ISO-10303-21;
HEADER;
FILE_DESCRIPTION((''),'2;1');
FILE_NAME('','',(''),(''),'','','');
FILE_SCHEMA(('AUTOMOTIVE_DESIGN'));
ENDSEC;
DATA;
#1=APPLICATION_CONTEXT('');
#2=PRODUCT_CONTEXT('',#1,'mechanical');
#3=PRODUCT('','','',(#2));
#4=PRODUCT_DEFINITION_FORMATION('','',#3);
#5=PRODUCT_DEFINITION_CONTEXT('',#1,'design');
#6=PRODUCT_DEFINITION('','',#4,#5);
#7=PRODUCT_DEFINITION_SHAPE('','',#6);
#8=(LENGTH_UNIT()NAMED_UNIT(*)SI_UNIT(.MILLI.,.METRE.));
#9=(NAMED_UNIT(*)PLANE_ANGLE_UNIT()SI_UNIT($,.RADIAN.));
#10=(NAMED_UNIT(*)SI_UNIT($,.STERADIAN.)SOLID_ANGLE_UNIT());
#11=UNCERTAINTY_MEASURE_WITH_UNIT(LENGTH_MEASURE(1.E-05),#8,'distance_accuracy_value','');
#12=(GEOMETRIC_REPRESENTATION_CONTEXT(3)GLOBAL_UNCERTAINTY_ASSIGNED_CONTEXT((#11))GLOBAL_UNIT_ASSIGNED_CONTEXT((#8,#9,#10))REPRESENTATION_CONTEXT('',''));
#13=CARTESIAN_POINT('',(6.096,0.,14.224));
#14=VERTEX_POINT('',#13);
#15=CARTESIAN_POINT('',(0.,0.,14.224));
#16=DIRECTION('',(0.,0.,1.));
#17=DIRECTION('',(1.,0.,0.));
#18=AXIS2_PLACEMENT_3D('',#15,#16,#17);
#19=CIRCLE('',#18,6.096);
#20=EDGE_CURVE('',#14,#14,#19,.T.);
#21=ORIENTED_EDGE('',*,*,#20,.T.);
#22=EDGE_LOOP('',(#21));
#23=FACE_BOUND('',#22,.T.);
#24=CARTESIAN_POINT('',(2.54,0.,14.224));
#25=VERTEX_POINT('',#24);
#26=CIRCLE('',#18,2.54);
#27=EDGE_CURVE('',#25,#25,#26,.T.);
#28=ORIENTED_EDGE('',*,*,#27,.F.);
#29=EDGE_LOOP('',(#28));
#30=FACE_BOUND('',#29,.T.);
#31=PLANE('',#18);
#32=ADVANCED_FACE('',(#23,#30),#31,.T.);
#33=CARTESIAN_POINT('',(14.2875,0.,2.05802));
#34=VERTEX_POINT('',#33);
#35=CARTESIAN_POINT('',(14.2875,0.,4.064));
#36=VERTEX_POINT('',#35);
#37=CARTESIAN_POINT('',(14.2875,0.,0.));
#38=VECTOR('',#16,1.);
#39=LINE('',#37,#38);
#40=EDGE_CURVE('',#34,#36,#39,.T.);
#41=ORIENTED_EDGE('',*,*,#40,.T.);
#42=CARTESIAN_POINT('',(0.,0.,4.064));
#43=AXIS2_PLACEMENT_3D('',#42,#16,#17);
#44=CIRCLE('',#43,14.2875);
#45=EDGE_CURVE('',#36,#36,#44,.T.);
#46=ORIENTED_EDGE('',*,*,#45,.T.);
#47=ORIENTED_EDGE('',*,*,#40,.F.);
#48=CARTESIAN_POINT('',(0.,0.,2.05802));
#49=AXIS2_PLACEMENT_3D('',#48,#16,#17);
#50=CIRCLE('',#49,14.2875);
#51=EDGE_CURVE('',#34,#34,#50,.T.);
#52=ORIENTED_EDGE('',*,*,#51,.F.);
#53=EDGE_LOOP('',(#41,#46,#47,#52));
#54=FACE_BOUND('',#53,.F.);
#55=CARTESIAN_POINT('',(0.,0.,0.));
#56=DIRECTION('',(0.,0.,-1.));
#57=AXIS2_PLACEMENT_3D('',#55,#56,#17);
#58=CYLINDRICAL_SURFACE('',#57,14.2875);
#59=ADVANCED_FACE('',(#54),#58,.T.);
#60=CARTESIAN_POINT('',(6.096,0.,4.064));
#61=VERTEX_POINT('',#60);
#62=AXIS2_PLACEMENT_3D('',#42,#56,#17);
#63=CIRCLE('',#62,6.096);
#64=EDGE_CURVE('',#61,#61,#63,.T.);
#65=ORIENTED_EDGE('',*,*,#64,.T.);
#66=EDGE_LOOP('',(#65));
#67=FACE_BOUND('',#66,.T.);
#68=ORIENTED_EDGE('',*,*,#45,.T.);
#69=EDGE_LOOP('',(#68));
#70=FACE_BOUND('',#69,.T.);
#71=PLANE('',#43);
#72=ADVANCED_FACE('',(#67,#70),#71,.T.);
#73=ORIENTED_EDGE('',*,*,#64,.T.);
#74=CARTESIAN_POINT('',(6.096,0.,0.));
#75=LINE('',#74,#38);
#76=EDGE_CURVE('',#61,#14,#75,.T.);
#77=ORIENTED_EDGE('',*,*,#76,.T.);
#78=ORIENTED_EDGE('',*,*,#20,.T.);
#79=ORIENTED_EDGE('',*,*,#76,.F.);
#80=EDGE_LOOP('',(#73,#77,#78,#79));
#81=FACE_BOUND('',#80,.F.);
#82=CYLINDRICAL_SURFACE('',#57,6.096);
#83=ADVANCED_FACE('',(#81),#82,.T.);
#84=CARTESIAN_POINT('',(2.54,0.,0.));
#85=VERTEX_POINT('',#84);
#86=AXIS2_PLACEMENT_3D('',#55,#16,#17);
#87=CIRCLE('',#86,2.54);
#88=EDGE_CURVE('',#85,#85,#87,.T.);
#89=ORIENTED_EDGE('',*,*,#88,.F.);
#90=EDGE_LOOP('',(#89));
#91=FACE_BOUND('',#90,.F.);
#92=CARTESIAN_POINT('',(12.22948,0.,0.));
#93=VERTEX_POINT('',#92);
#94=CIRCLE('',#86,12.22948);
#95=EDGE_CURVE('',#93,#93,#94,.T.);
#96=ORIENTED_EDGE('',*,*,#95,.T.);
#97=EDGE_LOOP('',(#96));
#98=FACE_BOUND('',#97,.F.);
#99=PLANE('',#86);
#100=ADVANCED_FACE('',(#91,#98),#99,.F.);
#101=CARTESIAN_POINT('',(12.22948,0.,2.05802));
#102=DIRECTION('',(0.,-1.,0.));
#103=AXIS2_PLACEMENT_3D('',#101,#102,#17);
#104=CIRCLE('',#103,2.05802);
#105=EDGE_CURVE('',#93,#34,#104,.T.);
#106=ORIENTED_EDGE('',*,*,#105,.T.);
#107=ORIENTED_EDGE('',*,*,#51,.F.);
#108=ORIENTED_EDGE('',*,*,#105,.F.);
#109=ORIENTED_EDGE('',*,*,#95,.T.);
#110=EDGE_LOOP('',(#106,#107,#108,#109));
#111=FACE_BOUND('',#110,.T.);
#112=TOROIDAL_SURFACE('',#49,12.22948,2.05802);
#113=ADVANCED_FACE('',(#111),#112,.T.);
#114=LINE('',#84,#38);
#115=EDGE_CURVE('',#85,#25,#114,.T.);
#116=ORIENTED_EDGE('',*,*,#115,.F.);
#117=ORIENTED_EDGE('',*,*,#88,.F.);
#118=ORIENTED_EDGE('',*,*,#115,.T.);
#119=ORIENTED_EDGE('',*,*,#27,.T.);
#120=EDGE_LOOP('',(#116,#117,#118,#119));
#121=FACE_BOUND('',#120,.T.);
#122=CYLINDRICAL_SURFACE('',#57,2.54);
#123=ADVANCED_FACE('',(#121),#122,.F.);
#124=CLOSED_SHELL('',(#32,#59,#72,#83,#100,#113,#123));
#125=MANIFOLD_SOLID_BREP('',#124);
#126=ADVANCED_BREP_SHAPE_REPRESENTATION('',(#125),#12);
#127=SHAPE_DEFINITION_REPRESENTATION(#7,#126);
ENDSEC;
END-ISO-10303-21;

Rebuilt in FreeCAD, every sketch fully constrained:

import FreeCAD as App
import Part
import Sketcher
Q = App.Units.Quantity


def edges_at(feature, points):
    """Names of the edges that pass closest to the given points."""
    edges = feature.Shape.Edges
    near = lambda p: min(range(len(edges)), key=lambda i: edges[i].distToShape(Part.Vertex(*p))[0])
    return sorted({f"Edge{near(p) + 1}" for p in points})

doc = App.newDocument("Part")
body = doc.addObject("PartDesign::Body", "Body")

sketch1 = body.newObject("Sketcher::SketchObject", "Sketch")
sketch1.AttachmentSupport = (doc.getObject("XY_Plane"), [""])
sketch1.MapMode = "FlatFace"
sketch1.addGeometry(Part.Circle(App.Vector(0, 0, 0), App.Vector(0, 0, 1), 14.3), False)
sketch1.addGeometry(Part.Circle(App.Vector(0, 0, 0), App.Vector(0, 0, 1), 2.5), False)
sketch1.addConstraint(Sketcher.Constraint("Coincident", 0, 3, -1, 1))
sketch1.addConstraint(Sketcher.Constraint("Coincident", 1, 3, -1, 1))
sketch1.addConstraint(Sketcher.Constraint("Diameter", 1, Q("0.2 in")))
sketch1.addConstraint(Sketcher.Constraint("Diameter", 0, Q("1.125 in")))
pad1 = body.newObject("PartDesign::Pad", "Pad")
pad1.Profile = sketch1
pad1.Length = Q("0.16 in")

sketch2 = body.newObject("Sketcher::SketchObject", "Sketch001")
sketch2.AttachmentSupport = (doc.getObject("XY_Plane"), [""])
sketch2.MapMode = "FlatFace"
sketch2.addGeometry(Part.Circle(App.Vector(0, 0, 0), App.Vector(0, 0, 1), 6.1), False)
sketch2.addGeometry(Part.Circle(App.Vector(0, 0, 0), App.Vector(0, 0, 1), 2.5), False)
sketch2.addConstraint(Sketcher.Constraint("Coincident", 0, 3, -1, 1))
sketch2.addConstraint(Sketcher.Constraint("Coincident", 1, 3, -1, 1))
sketch2.addConstraint(Sketcher.Constraint("Diameter", 1, Q("0.2 in")))
sketch2.addConstraint(Sketcher.Constraint("Diameter", 0, Q("0.48 in")))
pad2 = body.newObject("PartDesign::Pad", "Pad001")
pad2.Profile = sketch2
pad2.Length = Q("0.56 in")
doc.recompute()

fillet = body.newObject("PartDesign::Fillet", "Fillet")
fillet.Base = (pad2, edges_at(pad2, [(-14.287, 0, 0)]))
fillet.Radius = 2.05802

doc.recompute()
